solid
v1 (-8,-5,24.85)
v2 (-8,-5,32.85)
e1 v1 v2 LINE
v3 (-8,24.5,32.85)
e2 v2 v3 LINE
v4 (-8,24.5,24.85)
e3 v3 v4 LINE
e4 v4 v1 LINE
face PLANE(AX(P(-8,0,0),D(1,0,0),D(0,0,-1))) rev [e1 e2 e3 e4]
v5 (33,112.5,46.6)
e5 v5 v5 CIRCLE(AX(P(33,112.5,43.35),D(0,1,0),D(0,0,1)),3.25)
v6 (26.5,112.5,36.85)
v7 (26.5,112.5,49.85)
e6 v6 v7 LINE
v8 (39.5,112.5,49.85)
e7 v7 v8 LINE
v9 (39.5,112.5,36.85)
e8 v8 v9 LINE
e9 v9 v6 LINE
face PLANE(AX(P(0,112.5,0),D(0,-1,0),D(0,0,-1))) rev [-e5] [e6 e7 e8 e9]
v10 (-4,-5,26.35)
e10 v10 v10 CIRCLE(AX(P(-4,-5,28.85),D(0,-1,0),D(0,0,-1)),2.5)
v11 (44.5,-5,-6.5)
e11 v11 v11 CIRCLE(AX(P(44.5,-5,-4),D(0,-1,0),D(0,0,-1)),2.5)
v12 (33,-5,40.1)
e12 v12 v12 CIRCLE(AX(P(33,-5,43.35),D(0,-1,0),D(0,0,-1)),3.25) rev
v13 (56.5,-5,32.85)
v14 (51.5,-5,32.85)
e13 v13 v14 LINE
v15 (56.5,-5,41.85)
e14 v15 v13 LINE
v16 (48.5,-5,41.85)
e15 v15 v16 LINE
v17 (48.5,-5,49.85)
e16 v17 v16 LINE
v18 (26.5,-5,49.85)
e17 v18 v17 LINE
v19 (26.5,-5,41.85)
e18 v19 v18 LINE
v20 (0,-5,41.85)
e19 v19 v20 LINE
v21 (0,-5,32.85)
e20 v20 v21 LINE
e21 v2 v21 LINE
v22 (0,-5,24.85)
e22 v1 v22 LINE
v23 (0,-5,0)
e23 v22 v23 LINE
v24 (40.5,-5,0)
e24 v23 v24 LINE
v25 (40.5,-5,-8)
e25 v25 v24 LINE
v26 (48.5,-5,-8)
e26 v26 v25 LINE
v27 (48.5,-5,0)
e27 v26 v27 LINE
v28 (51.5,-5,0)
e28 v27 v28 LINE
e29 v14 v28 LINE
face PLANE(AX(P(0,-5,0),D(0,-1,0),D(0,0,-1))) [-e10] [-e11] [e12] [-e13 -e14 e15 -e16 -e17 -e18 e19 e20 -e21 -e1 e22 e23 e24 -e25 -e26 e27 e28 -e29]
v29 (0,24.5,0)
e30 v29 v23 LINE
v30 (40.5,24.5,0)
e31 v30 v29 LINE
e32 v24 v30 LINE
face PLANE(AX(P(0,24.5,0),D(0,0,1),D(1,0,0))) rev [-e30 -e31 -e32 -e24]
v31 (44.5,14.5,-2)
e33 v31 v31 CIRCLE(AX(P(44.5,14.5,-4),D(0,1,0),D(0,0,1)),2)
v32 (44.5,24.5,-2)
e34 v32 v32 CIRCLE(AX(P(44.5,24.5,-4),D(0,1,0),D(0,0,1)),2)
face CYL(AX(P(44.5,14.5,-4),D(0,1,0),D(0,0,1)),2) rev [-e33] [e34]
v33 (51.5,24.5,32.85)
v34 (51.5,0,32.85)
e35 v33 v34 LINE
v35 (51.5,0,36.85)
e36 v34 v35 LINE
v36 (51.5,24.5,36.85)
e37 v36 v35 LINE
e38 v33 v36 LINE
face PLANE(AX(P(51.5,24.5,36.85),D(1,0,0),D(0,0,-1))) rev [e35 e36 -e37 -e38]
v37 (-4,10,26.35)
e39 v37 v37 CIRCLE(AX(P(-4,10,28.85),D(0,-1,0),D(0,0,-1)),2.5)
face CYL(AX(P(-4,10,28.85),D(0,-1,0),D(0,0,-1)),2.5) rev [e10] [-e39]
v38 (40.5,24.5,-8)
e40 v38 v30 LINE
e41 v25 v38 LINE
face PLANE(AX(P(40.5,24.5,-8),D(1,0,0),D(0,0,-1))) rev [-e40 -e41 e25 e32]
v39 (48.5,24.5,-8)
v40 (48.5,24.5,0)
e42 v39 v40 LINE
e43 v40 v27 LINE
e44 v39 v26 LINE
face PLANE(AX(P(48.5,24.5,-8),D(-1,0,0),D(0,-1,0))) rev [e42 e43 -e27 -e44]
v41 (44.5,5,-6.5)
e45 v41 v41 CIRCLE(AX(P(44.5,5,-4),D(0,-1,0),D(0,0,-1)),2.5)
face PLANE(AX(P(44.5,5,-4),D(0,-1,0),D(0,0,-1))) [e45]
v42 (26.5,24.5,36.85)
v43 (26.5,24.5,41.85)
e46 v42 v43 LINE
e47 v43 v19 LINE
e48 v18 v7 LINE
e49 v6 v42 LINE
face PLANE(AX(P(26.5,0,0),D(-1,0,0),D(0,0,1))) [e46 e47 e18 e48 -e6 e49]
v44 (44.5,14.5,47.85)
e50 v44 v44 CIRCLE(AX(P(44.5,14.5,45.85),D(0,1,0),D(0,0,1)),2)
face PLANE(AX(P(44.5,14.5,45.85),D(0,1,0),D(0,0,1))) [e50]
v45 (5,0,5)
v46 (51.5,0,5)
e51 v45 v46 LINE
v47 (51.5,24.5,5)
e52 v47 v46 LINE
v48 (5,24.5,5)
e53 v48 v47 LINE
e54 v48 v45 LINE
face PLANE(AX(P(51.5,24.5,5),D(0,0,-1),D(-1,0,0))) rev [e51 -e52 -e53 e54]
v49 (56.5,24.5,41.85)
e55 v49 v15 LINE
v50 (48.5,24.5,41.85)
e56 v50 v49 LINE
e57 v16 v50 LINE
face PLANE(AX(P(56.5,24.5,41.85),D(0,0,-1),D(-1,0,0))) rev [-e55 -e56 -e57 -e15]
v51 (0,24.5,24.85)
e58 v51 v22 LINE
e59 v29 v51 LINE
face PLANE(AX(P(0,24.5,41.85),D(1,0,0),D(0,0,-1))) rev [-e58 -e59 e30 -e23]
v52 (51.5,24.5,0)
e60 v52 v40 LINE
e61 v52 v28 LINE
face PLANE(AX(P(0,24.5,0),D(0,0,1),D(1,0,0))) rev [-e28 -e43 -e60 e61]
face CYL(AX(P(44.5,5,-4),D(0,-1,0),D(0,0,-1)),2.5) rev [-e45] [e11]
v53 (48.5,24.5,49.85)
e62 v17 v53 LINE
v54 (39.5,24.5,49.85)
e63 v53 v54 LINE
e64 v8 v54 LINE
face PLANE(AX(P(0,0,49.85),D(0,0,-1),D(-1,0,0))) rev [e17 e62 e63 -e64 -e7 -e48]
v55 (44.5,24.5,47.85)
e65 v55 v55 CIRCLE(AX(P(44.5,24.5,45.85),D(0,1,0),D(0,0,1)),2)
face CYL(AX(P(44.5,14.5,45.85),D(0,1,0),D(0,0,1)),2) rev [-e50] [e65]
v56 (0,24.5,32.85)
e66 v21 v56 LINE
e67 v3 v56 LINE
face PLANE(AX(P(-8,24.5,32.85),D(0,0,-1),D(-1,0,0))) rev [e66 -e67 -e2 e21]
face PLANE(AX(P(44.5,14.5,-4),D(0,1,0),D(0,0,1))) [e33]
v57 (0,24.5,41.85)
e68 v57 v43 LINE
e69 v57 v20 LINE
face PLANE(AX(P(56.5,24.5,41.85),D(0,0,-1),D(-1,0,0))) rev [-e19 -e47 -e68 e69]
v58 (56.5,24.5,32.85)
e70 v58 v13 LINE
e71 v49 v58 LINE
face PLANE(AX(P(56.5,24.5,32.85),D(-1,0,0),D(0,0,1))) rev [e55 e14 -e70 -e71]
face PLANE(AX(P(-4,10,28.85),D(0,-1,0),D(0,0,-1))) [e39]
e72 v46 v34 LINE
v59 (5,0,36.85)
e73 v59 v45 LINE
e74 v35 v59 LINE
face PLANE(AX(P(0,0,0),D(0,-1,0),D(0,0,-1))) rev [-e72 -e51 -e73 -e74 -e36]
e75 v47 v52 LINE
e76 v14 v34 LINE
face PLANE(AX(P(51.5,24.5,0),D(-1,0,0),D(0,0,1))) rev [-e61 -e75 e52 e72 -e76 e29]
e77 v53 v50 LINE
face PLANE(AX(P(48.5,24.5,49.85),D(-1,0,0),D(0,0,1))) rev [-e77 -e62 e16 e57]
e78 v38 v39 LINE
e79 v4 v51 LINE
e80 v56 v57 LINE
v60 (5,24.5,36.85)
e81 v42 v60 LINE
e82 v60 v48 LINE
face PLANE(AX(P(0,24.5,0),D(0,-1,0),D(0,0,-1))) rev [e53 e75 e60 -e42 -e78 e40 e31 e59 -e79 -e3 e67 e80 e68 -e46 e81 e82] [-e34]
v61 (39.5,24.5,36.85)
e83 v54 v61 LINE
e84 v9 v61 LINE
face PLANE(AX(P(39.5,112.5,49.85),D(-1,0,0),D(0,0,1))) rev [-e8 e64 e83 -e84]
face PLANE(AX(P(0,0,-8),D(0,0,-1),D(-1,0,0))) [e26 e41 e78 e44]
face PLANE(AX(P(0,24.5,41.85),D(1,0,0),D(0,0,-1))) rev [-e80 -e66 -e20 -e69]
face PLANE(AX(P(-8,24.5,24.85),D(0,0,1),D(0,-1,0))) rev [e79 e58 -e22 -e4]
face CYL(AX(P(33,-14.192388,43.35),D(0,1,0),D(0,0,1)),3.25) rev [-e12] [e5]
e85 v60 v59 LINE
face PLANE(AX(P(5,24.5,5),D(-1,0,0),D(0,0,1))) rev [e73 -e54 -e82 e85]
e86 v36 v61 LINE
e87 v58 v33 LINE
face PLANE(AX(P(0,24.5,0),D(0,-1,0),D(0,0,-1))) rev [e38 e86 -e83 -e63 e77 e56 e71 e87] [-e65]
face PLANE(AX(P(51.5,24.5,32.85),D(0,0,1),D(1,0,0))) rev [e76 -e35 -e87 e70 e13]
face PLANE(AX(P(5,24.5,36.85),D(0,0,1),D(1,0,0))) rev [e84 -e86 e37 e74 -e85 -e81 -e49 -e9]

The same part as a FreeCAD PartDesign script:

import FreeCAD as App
import Part
import Sketcher

V = App.Vector


def add_polygon(sketch, points):
    """Adds a closed chain of lines whose ends are joined by coincident constraints."""
    first, n = sketch.GeometryCount, len(points)
    for a, b in zip(points, points[1:] + points[:1]):
        sketch.addGeometry(Part.LineSegment(App.Vector(*a, 0), App.Vector(*b, 0)), False)
    for i in range(n):
        sketch.addConstraint(Sketcher.Constraint("Coincident", first + i, 2, first + (i + 1) % n, 1))

doc = App.newDocument("Part")
body = doc.addObject("PartDesign::Body", "Body")

# Sketch on XZ plane
sketch1 = body.newObject("Sketcher::SketchObject", "Sketch")
sketch1.AttachmentSupport = (doc.getObject("XZ_Plane"), [""])
sketch1.MapMode = "FlatFace"
add_polygon(sketch1, [(51.5, 0), (0, 0), (0, 41.85), (56.5, 41.85), (56.5, 32.85), (51.5, 32.85), (51.5, 36.85), (5, 36.85), (5, 5), (51.5, 5)])  # lines 0-9
sketch1.addConstraint([
    Sketcher.Constraint("Horizontal", 0),
    Sketcher.Constraint("Vertical", 1),
    Sketcher.Constraint("Horizontal", 2),
    Sketcher.Constraint("Vertical", 3),
    Sketcher.Constraint("Horizontal", 4),
    Sketcher.Constraint("Vertical", 5),
    Sketcher.Constraint("Horizontal", 6),
    Sketcher.Constraint("Vertical", 7),
    Sketcher.Constraint("Horizontal", 8),
    Sketcher.Constraint("Vertical", 9),
    Sketcher.Constraint("Coincident", 0, 2, -1, 1),
    Sketcher.Constraint("Vertical", 5, 2, 8, 2),
    Sketcher.Constraint("Equal", 4, 9),
    Sketcher.Constraint("DistanceX", 4, 2, 4, 1, 5.0),
    Sketcher.Constraint("DistanceY", 3, 2, 3, 1, 9.0),
    Sketcher.Constraint("DistanceY", 5, 1, 5, 2, 4.0),
    Sketcher.Constraint("DistanceX", 0, 2, 0, 1, 51.5),
    Sketcher.Constraint("DistanceX", 6, 2, 6, 1, 46.5),
    Sketcher.Constraint("DistanceY", 1, 1, 1, 2, 41.85),
])
pad1 = body.newObject("PartDesign::Pad", "Pad")
pad1.Profile = sketch1
pad1.Length = 24.5
pad1.Reversed = True

# Sketch on XZ plane
sketch2 = body.newObject("Sketcher::SketchObject", "Sketch001")
sketch2.AttachmentSupport = (doc.getObject("XZ_Plane"), [""])
sketch2.MapMode = "FlatFace"
add_polygon(sketch2, [(0, 41.85), (0, 0), (103, 0), (103, 41.85)])  # lines 0-3
sketch2.addConstraint([
    Sketcher.Constraint("Vertical", 0),
    Sketcher.Constraint("Horizontal", 1),
    Sketcher.Constraint("Vertical", 2),
    Sketcher.Constraint("Horizontal", 3),
    Sketcher.Constraint("Coincident", 0, 2, -1, 1),
    Sketcher.Constraint("DistanceX", 1, 1, 1, 2, 103.0),
    Sketcher.Constraint("DistanceY", 0, 2, 0, 1, 41.85),
])
pad2 = body.newObject("PartDesign::Pad", "Pad001")
pad2.Profile = sketch2
pad2.Length = 5

# Sketch on XZ plane
sketch3 = body.newObject("Sketcher::SketchObject", "Sketch002")
sketch3.AttachmentSupport = (doc.getObject("XZ_Plane"), [""])
sketch3.MapMode = "FlatFace"
add_polygon(sketch3, [(51.5, 5), (51.5, 32.85), (98, 32.85), (98, 5)])  # lines 0-3
sketch3.addConstraint([
    Sketcher.Constraint("Vertical", 0),
    Sketcher.Constraint("Horizontal", 1),
    Sketcher.Constraint("Vertical", 2),
    Sketcher.Constraint("Horizontal", 3),
    Sketcher.Constraint("DistanceX", 1, 1, 1, 2, 46.5),
    Sketcher.Constraint("DistanceX", -1, 1, 1, 2, 98.0),
    Sketcher.Constraint("DistanceY", -1, 1, 2, 2, 5.0),
    Sketcher.Constraint("DistanceY", 0, 1, 0, 2, 27.85),
])
pocket1 = body.newObject("PartDesign::Pocket", "Pocket")
pocket1.Profile = sketch3
pocket1.Length = 26
pocket1.Reversed = True

# Sketch on XY plane
sketch4 = body.newObject("Sketcher::SketchObject", "Sketch003")
sketch4.AttachmentSupport = (doc.getObject("XY_Plane"), [""])
sketch4.MapMode = "FlatFace"
sketch4.AttachmentOffset = App.Placement(V(0, 0, 41.85), App.Rotation())
add_polygon(sketch4, [(0, -2), (0, -5), (8, -5), (8, -2)])  # lines 0-3
sketch4.addConstraint([
    Sketcher.Constraint("Vertical", 0),
    Sketcher.Constraint("Horizontal", 1),
    Sketcher.Constraint("Vertical", 2),
    Sketcher.Constraint("Horizontal", 3),
    Sketcher.Constraint("PointOnObject", 0, 2, -2),
    Sketcher.Constraint("DistanceX", 1, 1, 1, 2, 8.0),
    Sketcher.Constraint("DistanceY", 0, 2, 0, 1, 3.0),
    Sketcher.Constraint("DistanceY", 0, 2, -1, 1, 5.0),
])
pad3 = body.newObject("PartDesign::Pad", "Pad002")
pad3.Profile = sketch4
pad3.Length = 8

# Sketch on XZ plane
sketch5 = body.newObject("Sketcher::SketchObject", "Sketch004")
sketch5.AttachmentSupport = (doc.getObject("XZ_Plane"), [""])
sketch5.MapMode = "FlatFace"
sketch5.AttachmentOffset = App.Placement(V(0, 0, 2), App.Rotation())
sketch5.addGeometry(Part.Circle(V(4, 45.85, 0), V(0, 0, 1), 2.5), False)
sketch5.addConstraint([
    Sketcher.Constraint("Diameter", 0, 5.0),
    Sketcher.Constraint("DistanceX", -1, 1, 0, 3, 4.0),
    Sketcher.Constraint("DistanceY", -1, 1, 0, 3, 45.85),
])
pocket2 = body.newObject("PartDesign::Pocket", "Pocket001")
pocket2.Profile = sketch5
pocket2.Length = 8
pocket2.Reversed = True

# Sketch on XY plane
sketch6 = body.newObject("Sketcher::SketchObject", "Sketch005")
sketch6.AttachmentSupport = (doc.getObject("XY_Plane"), [""])
sketch6.MapMode = "FlatFace"
add_polygon(sketch6, [(103, -2), (103, -5), (95, -5), (95, -2)])  # lines 0-3
sketch6.addConstraint([
    Sketcher.Constraint("Vertical", 0),
    Sketcher.Constraint("Horizontal", 1),
    Sketcher.Constraint("Vertical", 2),
    Sketcher.Constraint("Horizontal", 3),
    Sketcher.Constraint("DistanceX", 1, 2, 1, 1, 8.0),
    Sketcher.Constraint("DistanceY", 0, 2, 0, 1, 3.0),
    Sketcher.Constraint("DistanceX", -1, 1, 0, 2, 103.0),
    Sketcher.Constraint("DistanceY", 0, 2, -1, 1, 5.0),
])
pad4 = body.newObject("PartDesign::Pad", "Pad003")
pad4.Profile = sketch6
pad4.Length = 8
pad4.Reversed = True

# Sketch on XZ plane
sketch7 = body.newObject("Sketcher::SketchObject", "Sketch006")
sketch7.AttachmentSupport = (doc.getObject("XZ_Plane"), [""])
sketch7.MapMode = "FlatFace"
sketch7.AttachmentOffset = App.Placement(V(0, 0, 2), App.Rotation())
sketch7.addGeometry(Part.Circle(V(99, -3.996681, 0), V(0, 0, 1), 2.5), False)
sketch7.addConstraint([
    Sketcher.Constraint("Diameter", 0, 5.0),
    Sketcher.Constraint("DistanceX", -1, 1, 0, 3, 99.0),
    Sketcher.Constraint("DistanceY", 0, 3, -1, 1, 3.996681),
])
pocket3 = body.newObject("PartDesign::Pocket", "Pocket002")
pocket3.Profile = sketch7
pocket3.Length = 8
pocket3.Reversed = True

# Sketch on XZ plane
sketch8 = body.newObject("Sketcher::SketchObject", "Sketch007")
sketch8.AttachmentSupport = (doc.getObject("XZ_Plane"), [""])
sketch8.MapMode = "FlatFace"
add_polygon(sketch8, [(83.5, 0), (83.5, 5), (95, 5), (95, 0)])  # lines 0-3
sketch8.addConstraint([
    Sketcher.Constraint("Vertical", 0),
    Sketcher.Constraint("Horizontal", 1),
    Sketcher.Constraint("Vertical", 2),
    Sketcher.Constraint("Horizontal", 3),
    Sketcher.Constraint("PointOnObject", 2, 2, -1),
    Sketcher.Constraint("DistanceY", 0, 1, 0, 2, 5.0),
    Sketcher.Constraint("DistanceX", 1, 1, 1, 2, 11.5),
    Sketcher.Constraint("DistanceX", -1, 1, 1, 2, 95.0),
])
pocket4 = body.newObject("PartDesign::Pocket", "Pocket003")
pocket4.Profile = sketch8
pocket4.Length = 8
pocket4.Reversed = True

# Sketch on XY plane
sketch9 = body.newObject("Sketcher::SketchObject", "Sketch008")
sketch9.AttachmentSupport = (doc.getObject("XY_Plane"), [""])
sketch9.MapMode = "FlatFace"
add_polygon(sketch9, [(83.5, -2), (83.5, -5), (75.5, -5), (75.5, -2)])  # lines 0-3
sketch9.addConstraint([
    Sketcher.Constraint("Vertical", 0),
    Sketcher.Constraint("Horizontal", 1),
    Sketcher.Constraint("Vertical", 2),
    Sketcher.Constraint("Horizontal", 3),
    Sketcher.Constraint("DistanceX", 1, 2, 1, 1, 8.0),
    Sketcher.Constraint("DistanceY", 0, 2, 0, 1, 3.0),
    Sketcher.Constraint("DistanceY", 0, 2, -1, 1, 5.0),
    Sketcher.Constraint("DistanceX", -1, 1, 0, 2, 83.5),
])
pad5 = body.newObject("PartDesign::Pad", "Pad004")
pad5.Profile = sketch9
pad5.Length = 8
pad5.Reversed = True

# Sketch on XZ plane
sketch10 = body.newObject("Sketcher::SketchObject", "Sketch009")
sketch10.AttachmentSupport = (doc.getObject("XZ_Plane"), [""])
sketch10.MapMode = "FlatFace"
sketch10.AttachmentOffset = App.Placement(V(0, 0, 2), App.Rotation())
sketch10.addGeometry(Part.Circle(V(79.5, -4, 0), V(0, 0, 1), 2.5), False)
sketch10.addConstraint([
    Sketcher.Constraint("Diameter", 0, 5.0),
    Sketcher.Constraint("DistanceY", 0, 3, -1, 1, 4.0),
    Sketcher.Constraint("DistanceX", -1, 1, 0, 3, 79.5),
])
pocket5 = body.newObject("PartDesign::Pocket", "Pocket004")
pocket5.Profile = sketch10
pocket5.Length = 8
pocket5.Reversed = True

# Sketch on XY plane
sketch11 = body.newObject("Sketcher::SketchObject", "Sketch010")
sketch11.AttachmentSupport = (doc.getObject("XY_Plane"), [""])
sketch11.MapMode = "FlatFace"
add_polygon(sketch11, [(48.5, 24.5), (48.5, -5), (40.5, -5), (40.5, 24.5)])  # lines 0-3
sketch11.addConstraint([
    Sketcher.Constraint("Vertical", 0),
    Sketcher.Constraint("Horizontal", 1),
    Sketcher.Constraint("Vertical", 2),
    Sketcher.Constraint("Horizontal", 3),
    Sketcher.Constraint("DistanceX", 1, 2, 1, 1, 8.0),
    Sketcher.Constraint("DistanceY", 0, 2, 0, 1, 29.5),
    Sketcher.Constraint("DistanceY", 0, 2, -1, 1, 5.0),
    Sketcher.Constraint("DistanceX", -1, 1, 0, 2, 48.5),
])
pad6 = body.newObject("PartDesign::Pad", "Pad005")
pad6.Profile = sketch11
pad6.Length = 8
pad6.Reversed = True

# Sketch on XY plane
sketch12 = body.newObject("Sketcher::SketchObject", "Sketch011")
sketch12.AttachmentSupport = (doc.getObject("XY_Plane"), [""])
sketch12.MapMode = "FlatFace"
sketch12.AttachmentOffset = App.Placement(V(0, 0, 41.85), App.Rotation())
add_polygon(sketch12, [(34.5, 24.5), (34.5, -5), (48.5, -5), (48.5, 24.5)])  # lines 0-3
sketch12.addConstraint([
    Sketcher.Constraint("Vertical", 0),
    Sketcher.Constraint("Horizontal", 1),
    Sketcher.Constraint("Vertical", 2),
    Sketcher.Constraint("Horizontal", 3),
    Sketcher.Constraint("DistanceX", 1, 1, 1, 2, 14.0),
    Sketcher.Constraint("DistanceY", 0, 2, 0, 1, 29.5),
    Sketcher.Constraint("DistanceY", 0, 2, -1, 1, 5.0),
    Sketcher.Constraint("DistanceX", -1, 1, 0, 2, 34.5),
])
pad7 = body.newObject("PartDesign::Pad", "Pad006")
pad7.Profile = sketch12
pad7.Length = 8

# Sketch on XZ plane
sketch13 = body.newObject("Sketcher::SketchObject", "Sketch012")
sketch13.AttachmentSupport = (doc.getObject("XZ_Plane"), [""])
sketch13.MapMode = "FlatFace"
sketch13.AttachmentOffset = App.Placement(V(0, 0, -24.5), App.Rotation())
sketch13.addGeometry([
    Part.Circle(V(44.5, -4, 0), V(0, 0, 1), 2),
    Part.Circle(V(44.5, 45.85, 0), V(0, 0, 1), 2),
], False)
sketch13.addConstraint([
    Sketcher.Constraint("Equal", 0, 1),
    Sketcher.Constraint("Vertical", 0, 3, 1, 3),
    Sketcher.Constraint("Diameter", 0, 4.0),
    Sketcher.Constraint("DistanceY", 0, 3, -1, 1, 4.0),
    Sketcher.Constraint("DistanceX", -1, 1, 0, 3, 44.5),
    Sketcher.Constraint("DistanceY", -1, 1, 1, 3, 45.85),
])
pocket6 = body.newObject("PartDesign::Pocket", "Pocket005")
pocket6.Profile = sketch13
pocket6.Length = 10
pocket6.Reversed = True

# Sketch on YZ plane
sketch14 = body.newObject("Sketcher::SketchObject", "Sketch013")
sketch14.AttachmentSupport = (doc.getObject("YZ_Plane"), [""])
sketch14.MapMode = "FlatFace"
sketch14.AttachmentOffset = App.Placement(V(0, 0, 34.5), App.Rotation())
add_polygon(sketch14, [(24.5, 41.85), (-5, 41.85), (-5, 49.85), (24.5, 49.85)])  # lines 0-3
sketch14.addConstraint([
    Sketcher.Constraint("Horizontal", 0),
    Sketcher.Constraint("Vertical", 1),
    Sketcher.Constraint("Horizontal", 2),
    Sketcher.Constraint("Vertical", 3),
    Sketcher.Constraint("DistanceY", 1, 1, 1, 2, 8.0),
    Sketcher.Constraint("DistanceX", 0, 2, 0, 1, 29.5),
    Sketcher.Constraint("DistanceX", 0, 2, -1, 1, 5.0),
    Sketcher.Constraint("DistanceY", -1, 1, 0, 2, 41.85),
])
pad8 = body.newObject("PartDesign::Pad", "Pad007")
pad8.Profile = sketch14
pad8.Length = 8
pad8.Reversed = True

# Sketch on XZ plane
sketch15 = body.newObject("Sketcher::SketchObject", "Sketch014")
sketch15.AttachmentSupport = (doc.getObject("XZ_Plane"), [""])
sketch15.MapMode = "FlatFace"
sketch15.AttachmentOffset = App.Placement(V(0, 0, -24.5), App.Rotation())
add_polygon(sketch15, [(26.5, 36.85), (26.5, 49.85), (39.5, 49.85), (39.5, 36.85)])  # lines 0-3
sketch15.addConstraint([
    Sketcher.Constraint("Vertical", 0),
    Sketcher.Constraint("Horizontal", 1),
    Sketcher.Constraint("Vertical", 2),
    Sketcher.Constraint("Horizontal", 3),
    Sketcher.Constraint("Equal", 3, 0),
    Sketcher.Constraint("DistanceX", 1, 1, 1, 2, 13.0),
    Sketcher.Constraint("DistanceX", -1, 1, 0, 2, 26.5),
    Sketcher.Constraint("DistanceY", -1, 1, 0, 2, 49.85),
])
pad9 = body.newObject("PartDesign::Pad", "Pad008")
pad9.Profile = sketch15
pad9.Length = 88
pad9.Reversed = True

# Sketch on XZ plane
sketch16 = body.newObject("Sketcher::SketchObject", "Sketch015")
sketch16.AttachmentSupport = (doc.getObject("XZ_Plane"), [""])
sketch16.MapMode = "FlatFace"
add_polygon(sketch16, [(103, -8), (51.5, -8), (51.5, 32.85), (56.5, 32.85), (56.5, 41.85), (103, 41.85)])  # lines 0-5
sketch16.addConstraint([
    Sketcher.Constraint("Horizontal", 0),
    Sketcher.Constraint("Vertical", 1),
    Sketcher.Constraint("Horizontal", 2),
    Sketcher.Constraint("Vertical", 3),
    Sketcher.Constraint("Horizontal", 4),
    Sketcher.Constraint("Vertical", 5),
    Sketcher.Constraint("DistanceX", 2, 1, 2, 2, 5.0),
    Sketcher.Constraint("DistanceY", 3, 1, 3, 2, 9.0),
    Sketcher.Constraint("DistanceX", 0, 2, 0, 1, 51.5),
    Sketcher.Constraint("DistanceY", 0, 2, -1, 1, 8.0),
    Sketcher.Constraint("DistanceX", -1, 1, 4, 2, 103.0),
    Sketcher.Constraint("DistanceY", 1, 1, 1, 2, 40.85),
])
pocket7 = body.newObject("PartDesign::Pocket", "Pocket006")
pocket7.Profile = sketch16
pocket7.Length = 48
pocket7.Reversed = True

# Sketch on XZ plane
sketch17 = body.newObject("Sketcher::SketchObject", "Sketch016")
sketch17.AttachmentSupport = (doc.getObject("XZ_Plane"), [""])
sketch17.MapMode = "FlatFace"
sketch17.AttachmentOffset = App.Placement(V(0, 0, 5), App.Rotation())
sketch17.addGeometry(Part.Circle(V(44.5, -4, 0), V(0, 0, 1), 2.5), False)
sketch17.addConstraint([
    Sketcher.Constraint("Diameter", 0, 5.0),
    Sketcher.Constraint("DistanceY", 0, 3, -1, 1, 4.0),
    Sketcher.Constraint("DistanceX", -1, 1, 0, 3, 44.5),
])
pocket8 = body.newObject("PartDesign::Pocket", "Pocket007")
pocket8.Profile = sketch17
pocket8.Length = 10

# Sketch on XZ plane
sketch18 = body.newObject("Sketcher::SketchObject", "Sketch017")
sketch18.AttachmentSupport = (doc.getObject("XZ_Plane"), [""])
sketch18.MapMode = "FlatFace"
sketch18.AttachmentOffset = App.Placement(V(0, 0, -112.5), App.Rotation())
sketch18.addGeometry(Part.Circle(V(33, 43.35, 0), V(0, 0, 1), 3.25), False)
sketch18.addConstraint([
    Sketcher.Constraint("Diameter", 0, 6.5),
    Sketcher.Constraint("DistanceX", -1, 1, 0, 3, 33.0),
    Sketcher.Constraint("DistanceY", -1, 1, 0, 3, 43.35),
])
pocket9 = body.newObject("PartDesign::Pocket", "Pocket008")
pocket9.Profile = sketch18
pocket9.Length = 117.5
pocket9.Reversed = True

# Sketch on XY plane
sketch19 = body.newObject("Sketcher::SketchObject", "Sketch018")
sketch19.AttachmentSupport = (doc.getObject("XY_Plane"), [""])
sketch19.MapMode = "FlatFace"
sketch19.AttachmentOffset = App.Placement(V(0, 0, 49.85), App.Rotation())
add_polygon(sketch19, [(0, -2), (0, -5), (8, -5), (8, -2)])  # lines 0-3
sketch19.addConstraint([
    Sketcher.Constraint("Vertical", 0),
    Sketcher.Constraint("Horizontal", 1),
    Sketcher.Constraint("Vertical", 2),
    Sketcher.Constraint("Horizontal", 3),
    Sketcher.Constraint("PointOnObject", 0, 2, -2),
    Sketcher.Constraint("DistanceX", 1, 1, 1, 2, 8.0),
    Sketcher.Constraint("DistanceY", 0, 2, 0, 1, 3.0),
    Sketcher.Constraint("DistanceY", 0, 2, -1, 1, 5.0),
])
pocket10 = body.newObject("PartDesign::Pocket", "Pocket009")
pocket10.Profile = sketch19
pocket10.Length = 8

# Sketch on YZ plane
sketch20 = body.newObject("Sketcher::SketchObject", "Sketch019")
sketch20.AttachmentSupport = (doc.getObject("YZ_Plane"), [""])
sketch20.MapMode = "FlatFace"
add_polygon(sketch20, [(24.5, 24.85), (-5, 24.85), (-5, 32.85), (24.5, 32.85)])  # lines 0-3
sketch20.addConstraint([
    Sketcher.Constraint("Horizontal", 0),
    Sketcher.Constraint("Vertical", 1),
    Sketcher.Constraint("Horizontal", 2),
    Sketcher.Constraint("Vertical", 3),
    Sketcher.Constraint("DistanceY", 1, 1, 1, 2, 8.0),
    Sketcher.Constraint("DistanceX", 0, 2, 0, 1, 29.5),
    Sketcher.Constraint("DistanceX", 0, 2, -1, 1, 5.0),
    Sketcher.Constraint("DistanceY", -1, 1, 0, 2, 24.85),
])
pad10 = body.newObject("PartDesign::Pad", "Pad009")
pad10.Profile = sketch20
pad10.Length = 8
pad10.Reversed = True

# Sketch on XZ plane
sketch21 = body.newObject("Sketcher::SketchObject", "Sketch020")
sketch21.AttachmentSupport = (doc.getObject("XZ_Plane"), [""])
sketch21.MapMode = "FlatFace"
sketch21.AttachmentOffset = App.Placement(V(0, 0, 5), App.Rotation())
sketch21.addGeometry(Part.Circle(V(-4, 28.85, 0), V(0, 0, 1), 2.5), False)
sketch21.addConstraint([
    Sketcher.Constraint("Diameter", 0, 5.0),
    Sketcher.Constraint("DistanceX", 0, 3, -1, 1, 4.0),
    Sketcher.Constraint("DistanceY", -1, 1, 0, 3, 28.85),
])
pocket11 = body.newObject("PartDesign::Pocket", "Pocket010")
pocket11.Profile = sketch21
pocket11.Length = 15

doc.recompute()
